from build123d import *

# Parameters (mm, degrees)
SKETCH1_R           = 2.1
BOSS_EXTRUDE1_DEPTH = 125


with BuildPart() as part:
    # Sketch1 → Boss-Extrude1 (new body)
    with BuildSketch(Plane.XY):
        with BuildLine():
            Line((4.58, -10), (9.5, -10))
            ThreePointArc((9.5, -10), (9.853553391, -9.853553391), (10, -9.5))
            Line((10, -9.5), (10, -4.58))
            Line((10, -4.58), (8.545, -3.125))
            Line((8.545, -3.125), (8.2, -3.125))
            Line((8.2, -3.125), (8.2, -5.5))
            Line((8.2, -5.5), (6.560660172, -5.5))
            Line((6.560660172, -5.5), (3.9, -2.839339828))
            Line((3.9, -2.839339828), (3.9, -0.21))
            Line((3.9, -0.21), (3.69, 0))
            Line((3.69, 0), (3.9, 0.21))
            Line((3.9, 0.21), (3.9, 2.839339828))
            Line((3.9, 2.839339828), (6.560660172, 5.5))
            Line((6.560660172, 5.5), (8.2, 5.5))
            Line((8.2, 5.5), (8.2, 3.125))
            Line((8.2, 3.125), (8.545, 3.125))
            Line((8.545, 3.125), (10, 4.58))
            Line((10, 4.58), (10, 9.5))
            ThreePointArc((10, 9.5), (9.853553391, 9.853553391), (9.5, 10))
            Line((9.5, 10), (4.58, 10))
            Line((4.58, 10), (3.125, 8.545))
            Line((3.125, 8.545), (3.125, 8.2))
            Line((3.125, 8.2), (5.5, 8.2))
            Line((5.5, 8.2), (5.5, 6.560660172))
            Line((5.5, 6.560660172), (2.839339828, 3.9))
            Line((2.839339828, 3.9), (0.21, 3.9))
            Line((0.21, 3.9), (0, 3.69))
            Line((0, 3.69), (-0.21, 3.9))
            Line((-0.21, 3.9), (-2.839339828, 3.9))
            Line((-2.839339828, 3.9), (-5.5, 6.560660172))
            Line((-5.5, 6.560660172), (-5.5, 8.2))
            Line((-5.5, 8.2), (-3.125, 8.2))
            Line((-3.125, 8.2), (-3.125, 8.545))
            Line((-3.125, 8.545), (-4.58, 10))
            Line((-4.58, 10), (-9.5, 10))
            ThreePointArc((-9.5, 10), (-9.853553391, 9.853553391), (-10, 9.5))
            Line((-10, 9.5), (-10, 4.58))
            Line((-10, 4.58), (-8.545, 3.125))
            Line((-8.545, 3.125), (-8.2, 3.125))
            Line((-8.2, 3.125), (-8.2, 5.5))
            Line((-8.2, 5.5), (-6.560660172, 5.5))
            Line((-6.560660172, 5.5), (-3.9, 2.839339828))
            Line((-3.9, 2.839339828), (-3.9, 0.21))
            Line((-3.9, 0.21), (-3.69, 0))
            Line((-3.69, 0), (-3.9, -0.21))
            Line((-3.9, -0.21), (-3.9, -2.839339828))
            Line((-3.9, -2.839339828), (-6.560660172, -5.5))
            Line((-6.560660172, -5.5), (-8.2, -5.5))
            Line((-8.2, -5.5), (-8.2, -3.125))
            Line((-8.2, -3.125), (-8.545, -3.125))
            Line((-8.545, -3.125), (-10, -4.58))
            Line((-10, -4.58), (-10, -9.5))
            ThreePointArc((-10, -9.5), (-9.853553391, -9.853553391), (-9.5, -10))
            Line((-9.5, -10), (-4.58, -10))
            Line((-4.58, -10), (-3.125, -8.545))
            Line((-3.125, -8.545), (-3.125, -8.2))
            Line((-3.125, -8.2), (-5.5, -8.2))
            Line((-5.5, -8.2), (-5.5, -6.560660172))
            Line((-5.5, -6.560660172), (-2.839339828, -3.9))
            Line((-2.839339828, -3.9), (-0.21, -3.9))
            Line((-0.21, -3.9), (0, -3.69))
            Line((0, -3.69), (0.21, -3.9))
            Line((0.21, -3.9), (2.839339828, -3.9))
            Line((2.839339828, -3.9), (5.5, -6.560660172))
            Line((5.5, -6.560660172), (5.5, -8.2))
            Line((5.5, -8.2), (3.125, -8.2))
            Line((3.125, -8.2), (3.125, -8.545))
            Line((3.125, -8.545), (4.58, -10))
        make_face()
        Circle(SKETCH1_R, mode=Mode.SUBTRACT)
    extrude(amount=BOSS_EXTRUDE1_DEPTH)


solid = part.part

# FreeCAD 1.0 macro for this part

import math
import FreeCAD as App
import Part
import Sketcher

V = App.Vector

doc = App.newDocument("Part")
body = doc.addObject("PartDesign::Body", "Body")

# Sketch on XY plane
sketch1 = body.newObject("Sketcher::SketchObject", "Sketch")
sketch1.AttachmentSupport = (doc.getObject("XY_Plane"), [""])
sketch1.MapMode = "FlatFace"
sketch1.addGeometry([
    Part.LineSegment(V(4.58, -10, 0), V(9.5, -10, 0)),  # 0
    Part.ArcOfCircle(Part.Circle(V(9.5, -9.5, 0), V(0, 0, 1), 0.5), math.radians(-90), math.radians(0)),  # 1
    Part.LineSegment(V(10, -9.5, 0), V(10, -4.58, 0)),  # 2
    Part.LineSegment(V(10, -4.58, 0), V(8.545, -3.125, 0)),  # 3
    Part.LineSegment(V(8.545, -3.125, 0), V(8.2, -3.125, 0)),  # 4
    Part.LineSegment(V(8.2, -3.125, 0), V(8.2, -5.5, 0)),  # 5
    Part.LineSegment(V(8.2, -5.5, 0), V(6.56066, -5.5, 0)),  # 6
    Part.LineSegment(V(6.56066, -5.5, 0), V(3.9, -2.83934, 0)),  # 7
    Part.LineSegment(V(3.9, -2.83934, 0), V(3.9, -0.21, 0)),  # 8
    Part.LineSegment(V(3.9, -0.21, 0), V(3.69, 0, 0)),  # 9
    Part.LineSegment(V(3.69, 0, 0), V(3.9, 0.21, 0)),  # 10
    Part.LineSegment(V(3.9, 0.21, 0), V(3.9, 2.83934, 0)),  # 11
    Part.LineSegment(V(3.9, 2.83934, 0), V(6.56066, 5.5, 0)),  # 12
    Part.LineSegment(V(6.56066, 5.5, 0), V(8.2, 5.5, 0)),  # 13
    Part.LineSegment(V(8.2, 5.5, 0), V(8.2, 3.125, 0)),  # 14
    Part.LineSegment(V(8.2, 3.125, 0), V(8.545, 3.125, 0)),  # 15
    Part.LineSegment(V(8.545, 3.125, 0), V(10, 4.58, 0)),  # 16
    Part.LineSegment(V(10, 4.58, 0), V(10, 9.5, 0)),  # 17
    Part.ArcOfCircle(Part.Circle(V(9.5, 9.5, 0), V(0, 0, 1), 0.5), math.radians(0), math.radians(90)),  # 18
    Part.LineSegment(V(9.5, 10, 0), V(4.58, 10, 0)),  # 19
    Part.LineSegment(V(4.58, 10, 0), V(3.125, 8.545, 0)),  # 20
    Part.LineSegment(V(3.125, 8.545, 0), V(3.125, 8.2, 0)),  # 21
    Part.LineSegment(V(3.125, 8.2, 0), V(5.5, 8.2, 0)),  # 22
    Part.LineSegment(V(5.5, 8.2, 0), V(5.5, 6.56066, 0)),  # 23
    Part.LineSegment(V(5.5, 6.56066, 0), V(2.83934, 3.9, 0)),  # 24
    Part.LineSegment(V(2.83934, 3.9, 0), V(0.21, 3.9, 0)),  # 25
    Part.LineSegment(V(0.21, 3.9, 0), V(0, 3.69, 0)),  # 26
    Part.LineSegment(V(0, 3.69, 0), V(-0.21, 3.9, 0)),  # 27
    Part.LineSegment(V(-0.21, 3.9, 0), V(-2.83934, 3.9, 0)),  # 28
    Part.LineSegment(V(-2.83934, 3.9, 0), V(-5.5, 6.56066, 0)),  # 29
    Part.LineSegment(V(-5.5, 6.56066, 0), V(-5.5, 8.2, 0)),  # 30
    Part.LineSegment(V(-5.5, 8.2, 0), V(-3.125, 8.2, 0)),  # 31
    Part.LineSegment(V(-3.125, 8.2, 0), V(-3.125, 8.545, 0)),  # 32
    Part.LineSegment(V(-3.125, 8.545, 0), V(-4.58, 10, 0)),  # 33
    Part.LineSegment(V(-4.58, 10, 0), V(-9.5, 10, 0)),  # 34
    Part.ArcOfCircle(Part.Circle(V(-9.5, 9.5, 0), V(0, 0, 1), 0.5), math.radians(90), math.radians(180)),  # 35
    Part.LineSegment(V(-10, 9.5, 0), V(-10, 4.58, 0)),  # 36
    Part.LineSegment(V(-10, 4.58, 0), V(-8.545, 3.125, 0)),  # 37
    Part.LineSegment(V(-8.545, 3.125, 0), V(-8.2, 3.125, 0)),  # 38
    Part.LineSegment(V(-8.2, 3.125, 0), V(-8.2, 5.5, 0)),  # 39
    Part.LineSegment(V(-8.2, 5.5, 0), V(-6.56066, 5.5, 0)),  # 40
    Part.LineSegment(V(-6.56066, 5.5, 0), V(-3.9, 2.83934, 0)),  # 41
    Part.LineSegment(V(-3.9, 2.83934, 0), V(-3.9, 0.21, 0)),  # 42
    Part.LineSegment(V(-3.9, 0.21, 0), V(-3.69, 0, 0)),  # 43
    Part.LineSegment(V(-3.69, 0, 0), V(-3.9, -0.21, 0)),  # 44
    Part.LineSegment(V(-3.9, -0.21, 0), V(-3.9, -2.83934, 0)),  # 45
    Part.LineSegment(V(-3.9, -2.83934, 0), V(-6.56066, -5.5, 0)),  # 46
    Part.LineSegment(V(-6.56066, -5.5, 0), V(-8.2, -5.5, 0)),  # 47
    Part.LineSegment(V(-8.2, -5.5, 0), V(-8.2, -3.125, 0)),  # 48
    Part.LineSegment(V(-8.2, -3.125, 0), V(-8.545, -3.125, 0)),  # 49
    Part.LineSegment(V(-8.545, -3.125, 0), V(-10, -4.58, 0)),  # 50
    Part.LineSegment(V(-10, -4.58, 0), V(-10, -9.5, 0)),  # 51
    Part.ArcOfCircle(Part.Circle(V(-9.5, -9.5, 0), V(0, 0, 1), 0.5), math.radians(180), math.radians(270)),  # 52
    Part.LineSegment(V(-9.5, -10, 0), V(-4.58, -10, 0)),  # 53
    Part.LineSegment(V(-4.58, -10, 0), V(-3.125, -8.545, 0)),  # 54
    Part.LineSegment(V(-3.125, -8.545, 0), V(-3.125, -8.2, 0)),  # 55
    Part.LineSegment(V(-3.125, -8.2, 0), V(-5.5, -8.2, 0)),  # 56
    Part.LineSegment(V(-5.5, -8.2, 0), V(-5.5, -6.56066, 0)),  # 57
    Part.LineSegment(V(-5.5, -6.56066, 0), V(-2.83934, -3.9, 0)),  # 58
    Part.LineSegment(V(-2.83934, -3.9, 0), V(-0.21, -3.9, 0)),  # 59
    Part.LineSegment(V(-0.21, -3.9, 0), V(0, -3.69, 0)),  # 60
    Part.LineSegment(V(0, -3.69, 0), V(0.21, -3.9, 0)),  # 61
    Part.LineSegment(V(0.21, -3.9, 0), V(2.83934, -3.9, 0)),  # 62
    Part.LineSegment(V(2.83934, -3.9, 0), V(5.5, -6.56066, 0)),  # 63
    Part.LineSegment(V(5.5, -6.56066, 0), V(5.5, -8.2, 0)),  # 64
    Part.LineSegment(V(5.5, -8.2, 0), V(3.125, -8.2, 0)),  # 65
    Part.LineSegment(V(3.125, -8.2, 0), V(3.125, -8.545, 0)),  # 66
    Part.LineSegment(V(3.125, -8.545, 0), V(4.58, -10, 0)),  # 67
    Part.Circle(V(0, 0, 0), V(0, 0, 1), 2.1),  # 68
], False)
sketch1.addConstraint([
    Sketcher.Constraint("Tangent", 0, 2, 1, 1),
    Sketcher.Constraint("Tangent", 1, 2, 2, 1),
    Sketcher.Constraint("Coincident", 2, 2, 3, 1),
    Sketcher.Constraint("Coincident", 3, 2, 4, 1),
    Sketcher.Constraint("Coincident", 4, 2, 5, 1),
    Sketcher.Constraint("Coincident", 5, 2, 6, 1),
    Sketcher.Constraint("Coincident", 6, 2, 7, 1),
    Sketcher.Constraint("Coincident", 7, 2, 8, 1),
    Sketcher.Constraint("Coincident", 8, 2, 9, 1),
    Sketcher.Constraint("Coincident", 9, 2, 10, 1),
    Sketcher.Constraint("Coincident", 10, 2, 11, 1),
    Sketcher.Constraint("Coincident", 11, 2, 12, 1),
    Sketcher.Constraint("Coincident", 12, 2, 13, 1),
    Sketcher.Constraint("Coincident", 13, 2, 14, 1),
    Sketcher.Constraint("Coincident", 14, 2, 15, 1),
    Sketcher.Constraint("Coincident", 15, 2, 16, 1),
    Sketcher.Constraint("Coincident", 16, 2, 17, 1),
    Sketcher.Constraint("Tangent", 17, 2, 18, 1),
    Sketcher.Constraint("Tangent", 18, 2, 19, 1),
    Sketcher.Constraint("Coincident", 19, 2, 20, 1),
    Sketcher.Constraint("Coincident", 20, 2, 21, 1),
    Sketcher.Constraint("Coincident", 21, 2, 22, 1),
    Sketcher.Constraint("Coincident", 22, 2, 23, 1),
    Sketcher.Constraint("Coincident", 23, 2, 24, 1),
    Sketcher.Constraint("Coincident", 24, 2, 25, 1),
    Sketcher.Constraint("Coincident", 25, 2, 26, 1),
    Sketcher.Constraint("Coincident", 26, 2, 27, 1),
    Sketcher.Constraint("Coincident", 27, 2, 28, 1),
    Sketcher.Constraint("Coincident", 28, 2, 29, 1),
    Sketcher.Constraint("Coincident", 29, 2, 30, 1),
    Sketcher.Constraint("Coincident", 30, 2, 31, 1),
    Sketcher.Constraint("Coincident", 31, 2, 32, 1),
    Sketcher.Constraint("Coincident", 32, 2, 33, 1),
    Sketcher.Constraint("Coincident", 33, 2, 34, 1),
    Sketcher.Constraint("Tangent", 34, 2, 35, 1),
    Sketcher.Constraint("Tangent", 35, 2, 36, 1),
    Sketcher.Constraint("Coincident", 36, 2, 37, 1),
    Sketcher.Constraint("Coincident", 37, 2, 38, 1),
    Sketcher.Constraint("Coincident", 38, 2, 39, 1),
    Sketcher.Constraint("Coincident", 39, 2, 40, 1),
    Sketcher.Constraint("Coincident", 40, 2, 41, 1),
    Sketcher.Constraint("Coincident", 41, 2, 42, 1),
    Sketcher.Constraint("Coincident", 42, 2, 43, 1),
    Sketcher.Constraint("Coincident", 43, 2, 44, 1),
    Sketcher.Constraint("Coincident", 44, 2, 45, 1),
    Sketcher.Constraint("Coincident", 45, 2, 46, 1),
    Sketcher.Constraint("Coincident", 46, 2, 47, 1),
    Sketcher.Constraint("Coincident", 47, 2, 48, 1),
    Sketcher.Constraint("Coincident", 48, 2, 49, 1),
    Sketcher.Constraint("Coincident", 49, 2, 50, 1),
    Sketcher.Constraint("Coincident", 50, 2, 51, 1),
    Sketcher.Constraint("Tangent", 51, 2, 52, 1),
    Sketcher.Constraint("Tangent", 52, 2, 53, 1),
    Sketcher.Constraint("Coincident", 53, 2, 54, 1),
    Sketcher.Constraint("Coincident", 54, 2, 55, 1),
    Sketcher.Constraint("Coincident", 55, 2, 56, 1),
    Sketcher.Constraint("Coincident", 56, 2, 57, 1),
    Sketcher.Constraint("Coincident", 57, 2, 58, 1),
    Sketcher.Constraint("Coincident", 58, 2, 59, 1),
    Sketcher.Constraint("Coincident", 59, 2, 60, 1),
    Sketcher.Constraint("Coincident", 60, 2, 61, 1),
    Sketcher.Constraint("Coincident", 61, 2, 62, 1),
    Sketcher.Constraint("Coincident", 62, 2, 63, 1),
    Sketcher.Constraint("Coincident", 63, 2, 64, 1),
    Sketcher.Constraint("Coincident", 64, 2, 65, 1),
    Sketcher.Constraint("Coincident", 65, 2, 66, 1),
    Sketcher.Constraint("Coincident", 66, 2, 67, 1),
    Sketcher.Constraint("Coincident", 67, 2, 0, 1),
    Sketcher.Constraint("Horizontal", 0),
    Sketcher.Constraint("Vertical", 2),
    Sketcher.Constraint("Horizontal", 4),
    Sketcher.Constraint("Vertical", 5),
    Sketcher.Constraint("Horizontal", 6),
    Sketcher.Constraint("Vertical", 8),
    Sketcher.Constraint("Vertical", 11),
    Sketcher.Constraint("Horizontal", 13),
    Sketcher.Constraint("Vertical", 14),
    Sketcher.Constraint("Horizontal", 15),
    Sketcher.Constraint("Vertical", 17),
    Sketcher.Constraint("Horizontal", 19),
    Sketcher.Constraint("Vertical", 21),
    Sketcher.Constraint("Horizontal", 22),
    Sketcher.Constraint("Vertical", 23),
    Sketcher.Constraint("Horizontal", 25),
    Sketcher.Constraint("Horizontal", 28),
    Sketcher.Constraint("Vertical", 30),
    Sketcher.Constraint("Horizontal", 31),
    Sketcher.Constraint("Vertical", 32),
    Sketcher.Constraint("Horizontal", 34),
    Sketcher.Constraint("Vertical", 36),
    Sketcher.Constraint("Horizontal", 38),
    Sketcher.Constraint("Vertical", 39),
    Sketcher.Constraint("Horizontal", 40),
    Sketcher.Constraint("Vertical", 42),
    Sketcher.Constraint("Vertical", 45),
    Sketcher.Constraint("Horizontal", 47),
    Sketcher.Constraint("Vertical", 48),
    Sketcher.Constraint("Horizontal", 49),
    Sketcher.Constraint("Vertical", 51),
    Sketcher.Constraint("Horizontal", 53),
    Sketcher.Constraint("Vertical", 55),
    Sketcher.Constraint("Horizontal", 56),
    Sketcher.Constraint("Vertical", 57),
    Sketcher.Constraint("Horizontal", 59),
    Sketcher.Constraint("Horizontal", 62),
    Sketcher.Constraint("Vertical", 64),
    Sketcher.Constraint("Horizontal", 65),
    Sketcher.Constraint("Vertical", 66),
    Sketcher.Constraint("Coincident", 68, 3, -1, 1),
    Sketcher.Constraint("Equal", 1, 18),
    Sketcher.Constraint("Equal", 18, 35),
    Sketcher.Constraint("Equal", 35, 52),
    Sketcher.Constraint("Symmetric", 1, 3, 35, 3, -1, 1),
    Sketcher.Constraint("Symmetric", 18, 3, 52, 3, -1, 1),
    Sketcher.Constraint("Symmetric", 3, 2, 37, 2, -1, 1),
    Sketcher.Constraint("Symmetric", 5, 2, 39, 2, -1, 1),
    Sketcher.Constraint("Symmetric", 7, 2, 41, 2, -1, 1),
    Sketcher.Constraint("Symmetric", 9, 2, 43, 2, -1, 1),
    Sketcher.Constraint("Symmetric", 10, 2, 44, 2, -1, 1),
    Sketcher.Constraint("Symmetric", 12, 2, 46, 2, -1, 1),
    Sketcher.Constraint("Symmetric", 14, 2, 48, 2, -1, 1),
    Sketcher.Constraint("Symmetric", 20, 2, 54, 2, -1, 1),
    Sketcher.Constraint("Symmetric", 22, 2, 56, 2, -1, 1),
    Sketcher.Constraint("Symmetric", 24, 2, 58, 2, -1, 1),
    Sketcher.Constraint("Symmetric", 26, 2, 60, 2, -1, 1),
    Sketcher.Constraint("Symmetric", 27, 2, 61, 2, -1, 1),
    Sketcher.Constraint("Symmetric", 29, 2, 63, 2, -1, 1),
    Sketcher.Constraint("Symmetric", 31, 2, 65, 2, -1, 1),
    Sketcher.Constraint("Symmetric", 18, 3, 35, 3, -2),
    Sketcher.Constraint("Symmetric", 25, 2, 27, 2, -2),
    Sketcher.Constraint("Symmetric", 23, 2, 29, 2, -2),
    Sketcher.Constraint("Symmetric", 21, 2, 31, 2, -2),
    Sketcher.Constraint("Symmetric", 15, 2, 37, 2, -2),
    Sketcher.Constraint("Symmetric", 13, 2, 39, 2, -2),
    Sketcher.Constraint("Symmetric", 11, 2, 41, 2, -2),
    Sketcher.Constraint("PointOnObject", 9, 2, -1),
    Sketcher.Constraint("PointOnObject", 26, 2, -2),
    Sketcher.Constraint("Parallel", 3, 7),
    Sketcher.Constraint("Parallel", 7, 9),
    Sketcher.Constraint("Perpendicular", 9, 10),
    Sketcher.Constraint("Parallel", 10, 12),
    Sketcher.Constraint("Parallel", 12, 16),
    Sketcher.Constraint("Parallel", 16, 20),
    Sketcher.Constraint("Parallel", 20, 24),
    Sketcher.Constraint("Parallel", 24, 26),
    Sketcher.Constraint("Perpendicular", 26, 27),
    Sketcher.Constraint("Parallel", 27, 29),
    Sketcher.Constraint("Parallel", 29, 33),
    Sketcher.Constraint("Parallel", 33, 37),
    Sketcher.Constraint("Parallel", 37, 41),
    Sketcher.Constraint("Parallel", 41, 43),
    Sketcher.Constraint("Parallel", 44, 46),
    Sketcher.Constraint("Parallel", 46, 50),
    Sketcher.Constraint("Parallel", 50, 54),
    Sketcher.Constraint("Parallel", 54, 58),
    Sketcher.Constraint("Parallel", 58, 60),
    Sketcher.Constraint("Parallel", 61, 63),
    Sketcher.Constraint("Parallel", 63, 67),
    Sketcher.Constraint("Horizontal", 20, 2, 32, 2),
    Sketcher.Constraint("Horizontal", 2, 2, 50, 2),
    Sketcher.Constraint("Horizontal", 54, 2, 66, 2),
    Sketcher.Constraint("Equal", 53, 2),
    Sketcher.Constraint("Equal", 65, 5),
    Sketcher.Constraint("Equal", 62, 8),
    Sketcher.Constraint("Equal", 49, 21),
    Sketcher.Constraint("Equal", 47, 23),
    Sketcher.Constraint("Equal", 16, 20),
    Sketcher.Constraint("Equal", 12, 24),
    Sketcher.Constraint("Equal", 10, 26),
    Sketcher.Constraint("Diameter", 68, 4.2),
    Sketcher.Constraint("Radius", 1, 0.5),
    Sketcher.Constraint("DistanceY", 0, 2, -1, 1, 10.0),
    Sketcher.Constraint("DistanceX", 0, 1, 0, 2, 4.92),
    Sketcher.Constraint("DistanceX", -1, 1, 4, 2, 8.2),
    Sketcher.Constraint("DistanceY", 5, 2, -1, 1, 5.5),
    Sketcher.Constraint("DistanceX", -1, 1, 7, 2, 3.9),
    Sketcher.Constraint("DistanceX", 4, 2, 4, 1, 0.345),
    Sketcher.Constraint("DistanceY", 8, 2, -1, 1, 0.21),
    Sketcher.Constraint("DistanceX", 6, 2, 6, 1, 1.63934),
])
pad1 = body.newObject("PartDesign::Pad", "Pad")
pad1.Profile = sketch1
pad1.Length = 125

doc.recompute()
